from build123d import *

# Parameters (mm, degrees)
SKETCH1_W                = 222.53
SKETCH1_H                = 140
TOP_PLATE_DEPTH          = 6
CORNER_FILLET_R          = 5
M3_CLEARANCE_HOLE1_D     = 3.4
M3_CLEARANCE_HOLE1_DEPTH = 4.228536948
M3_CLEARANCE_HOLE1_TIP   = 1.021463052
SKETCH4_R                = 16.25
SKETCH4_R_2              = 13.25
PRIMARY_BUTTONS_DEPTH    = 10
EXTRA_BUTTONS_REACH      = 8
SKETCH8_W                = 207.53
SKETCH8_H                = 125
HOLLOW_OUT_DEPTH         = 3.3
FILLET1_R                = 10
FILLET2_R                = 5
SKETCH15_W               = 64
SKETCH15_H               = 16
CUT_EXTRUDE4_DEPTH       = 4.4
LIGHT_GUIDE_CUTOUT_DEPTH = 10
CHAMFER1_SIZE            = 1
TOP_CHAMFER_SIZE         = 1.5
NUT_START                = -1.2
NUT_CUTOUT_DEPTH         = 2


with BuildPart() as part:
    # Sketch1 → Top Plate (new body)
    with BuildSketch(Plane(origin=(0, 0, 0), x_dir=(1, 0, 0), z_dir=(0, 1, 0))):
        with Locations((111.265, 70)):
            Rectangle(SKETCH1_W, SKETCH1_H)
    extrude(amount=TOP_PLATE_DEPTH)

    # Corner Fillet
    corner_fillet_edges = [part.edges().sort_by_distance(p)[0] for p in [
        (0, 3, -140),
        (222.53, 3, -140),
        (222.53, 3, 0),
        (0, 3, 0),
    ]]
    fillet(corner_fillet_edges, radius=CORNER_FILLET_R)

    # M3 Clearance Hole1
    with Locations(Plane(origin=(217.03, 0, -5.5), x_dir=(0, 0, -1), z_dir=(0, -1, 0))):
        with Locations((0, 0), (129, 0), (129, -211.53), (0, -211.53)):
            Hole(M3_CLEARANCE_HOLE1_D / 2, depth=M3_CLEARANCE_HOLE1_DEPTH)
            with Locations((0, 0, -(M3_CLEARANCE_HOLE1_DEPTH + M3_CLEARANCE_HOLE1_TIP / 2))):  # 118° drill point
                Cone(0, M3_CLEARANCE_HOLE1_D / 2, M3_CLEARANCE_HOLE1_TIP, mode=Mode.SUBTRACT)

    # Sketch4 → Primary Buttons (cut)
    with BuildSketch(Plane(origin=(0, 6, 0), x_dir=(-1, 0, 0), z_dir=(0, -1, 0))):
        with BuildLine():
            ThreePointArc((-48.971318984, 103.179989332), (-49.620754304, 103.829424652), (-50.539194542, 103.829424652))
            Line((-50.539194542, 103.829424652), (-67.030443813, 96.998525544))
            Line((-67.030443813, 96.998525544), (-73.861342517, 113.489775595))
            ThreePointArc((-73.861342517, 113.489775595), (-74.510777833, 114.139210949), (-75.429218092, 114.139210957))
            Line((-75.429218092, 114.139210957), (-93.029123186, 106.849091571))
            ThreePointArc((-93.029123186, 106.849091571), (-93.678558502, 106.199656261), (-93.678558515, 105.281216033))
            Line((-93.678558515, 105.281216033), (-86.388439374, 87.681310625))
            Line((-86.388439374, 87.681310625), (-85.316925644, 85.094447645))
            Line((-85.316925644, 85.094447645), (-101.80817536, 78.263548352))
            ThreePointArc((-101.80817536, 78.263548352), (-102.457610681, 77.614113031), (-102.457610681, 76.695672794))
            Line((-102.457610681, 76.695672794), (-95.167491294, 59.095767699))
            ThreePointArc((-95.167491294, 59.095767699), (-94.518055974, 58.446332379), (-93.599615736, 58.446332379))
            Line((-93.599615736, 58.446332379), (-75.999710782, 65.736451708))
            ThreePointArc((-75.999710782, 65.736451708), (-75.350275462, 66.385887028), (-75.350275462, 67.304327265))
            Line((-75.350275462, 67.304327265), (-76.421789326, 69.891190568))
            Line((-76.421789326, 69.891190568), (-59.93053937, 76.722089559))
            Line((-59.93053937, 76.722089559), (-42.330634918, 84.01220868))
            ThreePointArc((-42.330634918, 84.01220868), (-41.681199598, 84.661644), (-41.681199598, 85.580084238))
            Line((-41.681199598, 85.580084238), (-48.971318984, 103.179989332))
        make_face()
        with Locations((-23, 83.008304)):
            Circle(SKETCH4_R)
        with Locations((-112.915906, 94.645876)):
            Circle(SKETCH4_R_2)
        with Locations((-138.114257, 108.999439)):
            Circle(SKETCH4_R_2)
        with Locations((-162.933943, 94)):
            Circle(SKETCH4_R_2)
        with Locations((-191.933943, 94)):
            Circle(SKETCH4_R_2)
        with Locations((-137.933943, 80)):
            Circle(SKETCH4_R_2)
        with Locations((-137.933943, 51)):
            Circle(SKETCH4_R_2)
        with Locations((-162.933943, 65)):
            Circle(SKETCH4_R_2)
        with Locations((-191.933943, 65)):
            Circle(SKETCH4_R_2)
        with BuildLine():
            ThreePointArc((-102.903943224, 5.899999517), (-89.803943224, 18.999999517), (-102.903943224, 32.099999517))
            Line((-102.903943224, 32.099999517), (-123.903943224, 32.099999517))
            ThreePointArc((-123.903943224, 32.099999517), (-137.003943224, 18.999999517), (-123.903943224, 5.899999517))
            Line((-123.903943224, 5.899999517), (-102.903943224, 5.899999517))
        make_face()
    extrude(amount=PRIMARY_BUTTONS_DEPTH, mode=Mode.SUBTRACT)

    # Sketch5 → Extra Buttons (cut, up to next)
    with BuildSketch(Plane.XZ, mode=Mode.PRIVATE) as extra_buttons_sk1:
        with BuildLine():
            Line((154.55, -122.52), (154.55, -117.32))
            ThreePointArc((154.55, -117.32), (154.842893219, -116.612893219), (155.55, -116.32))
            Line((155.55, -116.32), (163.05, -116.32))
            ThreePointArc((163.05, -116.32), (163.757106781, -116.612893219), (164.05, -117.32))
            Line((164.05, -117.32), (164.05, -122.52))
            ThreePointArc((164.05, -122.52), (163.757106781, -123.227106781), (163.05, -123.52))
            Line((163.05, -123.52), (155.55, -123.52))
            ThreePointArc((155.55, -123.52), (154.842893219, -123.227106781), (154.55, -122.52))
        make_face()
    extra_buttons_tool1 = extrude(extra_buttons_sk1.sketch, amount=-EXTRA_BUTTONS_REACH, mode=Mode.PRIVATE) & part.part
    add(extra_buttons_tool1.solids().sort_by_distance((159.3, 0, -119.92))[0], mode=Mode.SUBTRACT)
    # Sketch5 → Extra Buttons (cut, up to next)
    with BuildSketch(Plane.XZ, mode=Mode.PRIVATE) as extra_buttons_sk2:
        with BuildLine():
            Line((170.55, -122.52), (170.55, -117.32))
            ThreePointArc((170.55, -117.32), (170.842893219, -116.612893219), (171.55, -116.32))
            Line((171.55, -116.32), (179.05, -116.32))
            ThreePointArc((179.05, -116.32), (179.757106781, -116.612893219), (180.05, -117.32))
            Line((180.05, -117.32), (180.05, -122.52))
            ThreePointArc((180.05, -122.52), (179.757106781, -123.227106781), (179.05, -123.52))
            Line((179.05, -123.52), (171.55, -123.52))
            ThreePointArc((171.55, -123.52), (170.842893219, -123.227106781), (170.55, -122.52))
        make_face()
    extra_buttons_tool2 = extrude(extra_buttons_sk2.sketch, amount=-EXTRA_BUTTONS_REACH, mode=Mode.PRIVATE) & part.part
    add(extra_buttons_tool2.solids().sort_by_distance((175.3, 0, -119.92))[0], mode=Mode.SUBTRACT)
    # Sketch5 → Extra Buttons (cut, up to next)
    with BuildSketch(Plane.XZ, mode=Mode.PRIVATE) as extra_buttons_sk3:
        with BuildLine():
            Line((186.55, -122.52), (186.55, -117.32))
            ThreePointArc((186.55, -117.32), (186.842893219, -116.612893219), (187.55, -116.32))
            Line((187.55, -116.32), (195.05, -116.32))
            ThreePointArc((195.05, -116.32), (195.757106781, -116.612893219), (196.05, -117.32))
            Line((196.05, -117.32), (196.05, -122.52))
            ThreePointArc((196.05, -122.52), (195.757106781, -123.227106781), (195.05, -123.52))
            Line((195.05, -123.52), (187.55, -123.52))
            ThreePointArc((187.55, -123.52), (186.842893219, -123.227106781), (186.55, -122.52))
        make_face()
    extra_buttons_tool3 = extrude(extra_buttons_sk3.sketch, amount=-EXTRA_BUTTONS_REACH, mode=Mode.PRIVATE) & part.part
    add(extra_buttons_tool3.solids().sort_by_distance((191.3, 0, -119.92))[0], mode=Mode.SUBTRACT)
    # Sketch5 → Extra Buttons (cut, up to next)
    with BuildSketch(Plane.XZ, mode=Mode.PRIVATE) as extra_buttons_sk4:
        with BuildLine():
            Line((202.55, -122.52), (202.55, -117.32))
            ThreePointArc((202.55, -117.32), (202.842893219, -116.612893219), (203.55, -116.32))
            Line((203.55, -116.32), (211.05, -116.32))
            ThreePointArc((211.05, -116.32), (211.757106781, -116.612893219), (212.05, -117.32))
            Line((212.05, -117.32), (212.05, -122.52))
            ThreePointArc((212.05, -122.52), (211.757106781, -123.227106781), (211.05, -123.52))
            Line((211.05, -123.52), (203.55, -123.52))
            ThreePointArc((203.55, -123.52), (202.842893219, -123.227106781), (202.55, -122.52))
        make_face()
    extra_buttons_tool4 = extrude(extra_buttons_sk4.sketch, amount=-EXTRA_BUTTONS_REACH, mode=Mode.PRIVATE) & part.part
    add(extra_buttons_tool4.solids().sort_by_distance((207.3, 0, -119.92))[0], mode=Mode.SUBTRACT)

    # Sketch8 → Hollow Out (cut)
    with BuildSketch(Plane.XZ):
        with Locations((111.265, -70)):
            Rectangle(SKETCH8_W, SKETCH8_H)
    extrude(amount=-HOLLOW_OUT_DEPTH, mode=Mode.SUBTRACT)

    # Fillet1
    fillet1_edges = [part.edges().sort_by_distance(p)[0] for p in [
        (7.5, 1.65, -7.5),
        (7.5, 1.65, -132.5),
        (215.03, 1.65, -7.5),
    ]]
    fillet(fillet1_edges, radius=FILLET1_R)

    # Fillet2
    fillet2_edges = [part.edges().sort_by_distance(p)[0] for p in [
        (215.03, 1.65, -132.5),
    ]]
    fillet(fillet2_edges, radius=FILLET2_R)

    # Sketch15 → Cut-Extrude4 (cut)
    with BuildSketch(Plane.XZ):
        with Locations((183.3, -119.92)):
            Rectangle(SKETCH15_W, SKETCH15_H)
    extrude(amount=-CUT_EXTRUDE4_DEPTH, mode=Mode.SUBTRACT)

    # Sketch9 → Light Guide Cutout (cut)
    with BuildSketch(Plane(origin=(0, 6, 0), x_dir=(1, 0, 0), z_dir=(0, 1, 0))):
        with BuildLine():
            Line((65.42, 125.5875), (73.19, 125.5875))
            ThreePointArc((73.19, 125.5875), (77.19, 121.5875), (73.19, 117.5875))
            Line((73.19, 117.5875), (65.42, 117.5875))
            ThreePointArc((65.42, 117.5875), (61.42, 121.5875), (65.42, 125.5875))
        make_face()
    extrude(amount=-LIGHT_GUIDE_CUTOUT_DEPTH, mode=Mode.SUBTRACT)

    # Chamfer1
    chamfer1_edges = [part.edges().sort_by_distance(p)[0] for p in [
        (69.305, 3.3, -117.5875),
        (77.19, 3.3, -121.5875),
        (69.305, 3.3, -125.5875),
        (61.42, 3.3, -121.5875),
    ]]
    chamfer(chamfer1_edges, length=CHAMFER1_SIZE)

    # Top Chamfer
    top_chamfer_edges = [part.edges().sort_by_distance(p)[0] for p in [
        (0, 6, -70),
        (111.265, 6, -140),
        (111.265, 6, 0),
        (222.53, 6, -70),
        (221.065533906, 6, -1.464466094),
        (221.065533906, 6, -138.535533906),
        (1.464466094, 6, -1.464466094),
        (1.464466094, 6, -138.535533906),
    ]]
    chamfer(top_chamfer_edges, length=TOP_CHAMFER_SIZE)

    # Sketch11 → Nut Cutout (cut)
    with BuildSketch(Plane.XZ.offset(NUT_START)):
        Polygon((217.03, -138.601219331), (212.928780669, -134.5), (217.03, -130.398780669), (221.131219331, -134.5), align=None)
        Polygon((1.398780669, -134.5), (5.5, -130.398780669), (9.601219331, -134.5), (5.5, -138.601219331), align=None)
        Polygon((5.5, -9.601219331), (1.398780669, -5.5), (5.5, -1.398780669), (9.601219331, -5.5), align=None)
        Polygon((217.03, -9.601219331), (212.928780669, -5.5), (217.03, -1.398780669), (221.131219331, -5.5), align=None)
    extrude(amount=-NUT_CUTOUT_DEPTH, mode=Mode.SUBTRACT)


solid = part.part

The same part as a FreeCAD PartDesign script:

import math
import FreeCAD as App
import Part
import Sketcher
from FreeCAD import Vector
Q = App.Units.Quantity


def edges_at(feature, points):
    """Names of the edges that pass closest to the given points."""
    edges = feature.Shape.Edges
    near = lambda p: min(range(len(edges)), key=lambda i: edges[i].distToShape(Part.Vertex(*p))[0])
    return sorted({f"Edge{near(p) + 1}" for p in points})


def add_polygon(sketch, points):
    """Adds a closed chain of lines whose ends are joined by coincident constraints."""
    first, n = sketch.GeometryCount, len(points)
    for a, b in zip(points, points[1:] + points[:1]):
        sketch.addGeometry(Part.LineSegment(App.Vector(*a, 0), App.Vector(*b, 0)), False)
    for i in range(n):
        sketch.addConstraint(Sketcher.Constraint("Coincident", first + i, 2, first + (i + 1) % n, 1))

doc = App.newDocument("Part")
params = doc.addObject("Spreadsheet::Sheet", "Params")
for row, (alias, value) in enumerate([
    ("sketch1_height", "140 mm"),
    ("sketch1_width", "222.53 mm"),
    ("pad1_length", "6 mm"),
    ("fillet_radius", "5 mm"),
    ("sketch2_diameter", "3.4 mm"),
    ("hole_diameter", "3.4 mm"),
    ("hole_depth", "4.228537 mm"),
    ("sketch3_diameter", "32.5 mm"),
    ("sketch3_diameter2", "26.5 mm"),
    ("sketch3_radius", "1.2 mm"),
    ("sketch3_radius2", "13.1 mm"),
    ("sketch3_width", "21 mm"),
    ("pocket1_length", "10 mm"),
    ("sketch4_radius", "1 mm"),
    ("sketch4_width", "7.5 mm"),
    ("sketch4_height", "5.2 mm"),
    ("sketch5_radius", "1 mm"),
    ("sketch5_width", "7.5 mm"),
    ("sketch5_height", "5.2 mm"),
    ("sketch6_radius", "1 mm"),
    ("sketch6_width", "7.5 mm"),
    ("sketch6_height", "5.2 mm"),
    ("sketch7_radius", "1 mm"),
    ("sketch7_width", "7.5 mm"),
    ("sketch7_height", "5.2 mm"),
    ("sketch8_height", "125 mm"),
    ("sketch8_width", "207.53 mm"),
    ("pocket6_length", "3.3 mm"),
    ("fillet2_radius", "10 mm"),
    ("fillet3_radius", "5 mm"),
    ("sketch9_width", "64 mm"),
    ("sketch9_height", "16 mm"),
    ("pocket7_length", "4.4 mm"),
    ("sketch10_radius", "4 mm"),
    ("sketch10_width", "7.77 mm"),
    ("pocket8_length", "10 mm"),
    ("chamfer_size", "1 mm"),
    ("chamfer2_size", "1.5 mm"),
    ("sketch11_length", "5.8 mm"),
    ("pocket9_length", "2 mm"),
], start=1):
    params.set(f"A{row}", alias)
    params.set(f"B{row}", "=" + value)
    params.setAlias(f"B{row}", alias)

body = doc.addObject("PartDesign::Body", "Body")

# Sketch on XZ plane
sketch1 = body.newObject("Sketcher::SketchObject", "Sketch")
sketch1.AttachmentSupport = (doc.getObject("XZ_Plane"), [""])
sketch1.MapMode = "FlatFace"
add_polygon(sketch1, [(0, -140), (0, 0), (222.53, 0), (222.53, -140)])  # lines 0-3
sketch1.addConstraint(Sketcher.Constraint("Vertical", 0))
sketch1.addConstraint(Sketcher.Constraint("Horizontal", 1))
sketch1.addConstraint(Sketcher.Constraint("Vertical", 2))
sketch1.addConstraint(Sketcher.Constraint("Horizontal", 3))
sketch1.addConstraint(Sketcher.Constraint("Coincident", 0, 2, -1, 1))
sketch1.addConstraint(Sketcher.Constraint("DistanceY", 0, 1, 0, 2, Q("140 mm")))
sketch1.addConstraint(Sketcher.Constraint("DistanceX", 1, 1, 1, 2, Q("222.53 mm")))
sketch1.setExpression("Constraints[9]", "Params.sketch1_height")
sketch1.setExpression("Constraints[10]", "Params.sketch1_width")
pad1 = body.newObject("PartDesign::Pad", "Pad")
pad1.Profile = sketch1
pad1.setExpression("Length", "Params.pad1_length")
pad1.Reversed = True
doc.recompute()

fillet = body.newObject("PartDesign::Fillet", "Fillet")
fillet.Base = (pad1, edges_at(pad1, [
    (0, 3, -140),
    (222.53, 3, -140),
    (222.53, 3, 0),
    (0, 3, 0),
]))
fillet.setExpression("Radius", "Params.fillet_radius")

# Sketch on XZ plane
sketch2 = body.newObject("Sketcher::SketchObject", "Sketch001")
sketch2.AttachmentSupport = (doc.getObject("XZ_Plane"), [""])
sketch2.MapMode = "FlatFace"
sketch2.addGeometry(Part.Circle(Vector(217.03, -5.5, 0), Vector(0, 0, 1), 1.7), False)
sketch2.addGeometry(Part.Circle(Vector(217.03, -134.5, 0), Vector(0, 0, 1), 1.7), False)
sketch2.addGeometry(Part.Circle(Vector(5.5, -134.5, 0), Vector(0, 0, 1), 1.7), False)
sketch2.addGeometry(Part.Circle(Vector(5.5, -5.5, 0), Vector(0, 0, 1), 1.7), False)
sketch2.addConstraint(Sketcher.Constraint("Equal", 0, 1))
sketch2.addConstraint(Sketcher.Constraint("Equal", 1, 2))
sketch2.addConstraint(Sketcher.Constraint("Equal", 2, 3))
sketch2.addConstraint(Sketcher.Constraint("Horizontal", 1, 3, 2, 3))
sketch2.addConstraint(Sketcher.Constraint("Horizontal", 0, 3, 3, 3))
sketch2.addConstraint(Sketcher.Constraint("Vertical", 0, 3, 1, 3))
sketch2.addConstraint(Sketcher.Constraint("Vertical", 2, 3, 3, 3))
sketch2.addConstraint(Sketcher.Constraint("Diameter", 0, Q("3.4 mm")))
sketch2.addConstraint(Sketcher.Constraint("DistanceY", 1, 3, 0, 3, Q("129 mm")))
sketch2.addConstraint(Sketcher.Constraint("DistanceY", 0, 3, -1, 1, Q("5.5 mm")))
sketch2.addConstraint(Sketcher.Constraint("DistanceX", -1, 1, 2, 3, Q("5.5 mm")))
sketch2.addConstraint(Sketcher.Constraint("DistanceX", -1, 1, 0, 3, Q("217.03 mm")))
sketch2.setExpression("Constraints[7]", "Params.sketch2_diameter")
doc.recompute()
hole = body.newObject("PartDesign::Hole", "Hole")
hole.Profile = sketch2
hole.ThreadType = "None"
hole.setExpression("Diameter", "Params.hole_diameter")
hole.DepthType = "Dimension"
hole.setExpression("Depth", "Params.hole_depth")
hole.DrillPoint = "Angled"
hole.DrillPointAngle = 118

# Sketch on XZ plane
sketch3 = body.newObject("Sketcher::SketchObject", "Sketch002")
sketch3.AttachmentSupport = (doc.getObject("XZ_Plane"), [""])
sketch3.MapMode = "FlatFace"
sketch3.AttachmentOffset = App.Placement(Vector(0, 0, -6), App.Rotation())
sketch3.addGeometry(Part.ArcOfCircle(Part.Circle(Vector(50.079974, -102.720769, 0), Vector(0, 0, 1), 1.2), math.radians(-157.5), math.radians(-67.5)), False)
sketch3.addGeometry(Part.LineSegment(Vector(50.539195, -103.829425, 0), Vector(67.030444, -96.998526, 0)), False)
sketch3.addGeometry(Part.LineSegment(Vector(67.030444, -96.998526, 0), Vector(73.861343, -113.489776, 0)), False)
sketch3.addGeometry(Part.ArcOfCircle(Part.Circle(Vector(74.969998, -113.030556, 0), Vector(0, 0, 1), 1.2), math.radians(-157.500002), math.radians(-67.5)), False)
sketch3.addGeometry(Part.LineSegment(Vector(75.429218, -114.139211, 0), Vector(93.029123, -106.849092, 0)), False)
sketch3.addGeometry(Part.ArcOfCircle(Part.Circle(Vector(92.569903, -105.740436, 0), Vector(0, 0, 1), 1.2), math.radians(-67.5), math.radians(22.499999)), False)
sketch3.addGeometry(Part.LineSegment(Vector(93.678559, -105.281216, 0), Vector(86.388439, -87.681311, 0)), False)
sketch3.addGeometry(Part.LineSegment(Vector(86.388439, -87.681311, 0), Vector(85.316926, -85.094448, 0)), False)
sketch3.addGeometry(Part.LineSegment(Vector(85.316926, -85.094448, 0), Vector(101.808175, -78.263548, 0)), False)
sketch3.addGeometry(Part.ArcOfCircle(Part.Circle(Vector(101.348955, -77.154893, 0), Vector(0, 0, 1), 1.2), math.radians(-67.5), math.radians(22.5)), False)
sketch3.addGeometry(Part.LineSegment(Vector(102.457611, -76.695673, 0), Vector(95.167491, -59.095768, 0)), False)
sketch3.addGeometry(Part.ArcOfCircle(Part.Circle(Vector(94.058836, -59.554988, 0), Vector(0, 0, 1), 1.2), math.radians(22.5), math.radians(112.5)), False)
sketch3.addGeometry(Part.LineSegment(Vector(93.599616, -58.446332, 0), Vector(75.999711, -65.736452, 0)), False)
sketch3.addGeometry(Part.ArcOfCircle(Part.Circle(Vector(76.458931, -66.845107, 0), Vector(0, 0, 1), 1.2), math.radians(112.5), math.radians(202.5)), False)
sketch3.addGeometry(Part.LineSegment(Vector(75.350275, -67.304327, 0), Vector(76.421789, -69.891191, 0)), False)
sketch3.addGeometry(Part.LineSegment(Vector(76.421789, -69.891191, 0), Vector(59.930539, -76.72209, 0)), False)
sketch3.addGeometry(Part.LineSegment(Vector(59.930539, -76.72209, 0), Vector(42.330635, -84.012209, 0)), False)
sketch3.addGeometry(Part.ArcOfCircle(Part.Circle(Vector(42.789855, -85.120864, 0), Vector(0, 0, 1), 1.2), math.radians(112.5), math.radians(202.5)), False)
sketch3.addGeometry(Part.LineSegment(Vector(41.6812, -85.580084, 0), Vector(48.971319, -103.179989, 0)), False)
sketch3.addGeometry(Part.Circle(Vector(23, -83.008304, 0), Vector(0, 0, 1), 16.25), False)
sketch3.addGeometry(Part.Circle(Vector(112.915906, -94.645876, 0), Vector(0, 0, 1), 13.25), False)
sketch3.addGeometry(Part.Circle(Vector(138.114257, -108.999439, 0), Vector(0, 0, 1), 13.25), False)
sketch3.addGeometry(Part.Circle(Vector(162.933943, -94, 0), Vector(0, 0, 1), 13.25), False)
sketch3.addGeometry(Part.Circle(Vector(191.933943, -94, 0), Vector(0, 0, 1), 13.25), False)
sketch3.addGeometry(Part.Circle(Vector(137.933943, -80, 0), Vector(0, 0, 1), 13.25), False)
sketch3.addGeometry(Part.Circle(Vector(137.933943, -51, 0), Vector(0, 0, 1), 13.25), False)
sketch3.addGeometry(Part.Circle(Vector(162.933943, -65, 0), Vector(0, 0, 1), 13.25), False)
sketch3.addGeometry(Part.Circle(Vector(191.933943, -65, 0), Vector(0, 0, 1), 13.25), False)
sketch3.addGeometry(Part.ArcOfCircle(Part.Circle(Vector(102.903943, -19, 0), Vector(0, 0, 1), 13.1), math.radians(90), math.radians(270)), False)
sketch3.addGeometry(Part.LineSegment(Vector(102.903943, -32.1, 0), Vector(123.903943, -32.1, 0)), False)
sketch3.addGeometry(Part.ArcOfCircle(Part.Circle(Vector(123.903943, -19, 0), Vector(0, 0, 1), 13.1), math.radians(-90), math.radians(90)), False)
sketch3.addGeometry(Part.LineSegment(Vector(123.903943, -5.9, 0), Vector(102.903943, -5.9, 0)), False)
sketch3.addConstraint(Sketcher.Constraint("Tangent", 0, 2, 1, 1))
sketch3.addConstraint(Sketcher.Constraint("Coincident", 1, 2, 2, 1))
sketch3.addConstraint(Sketcher.Constraint("Tangent", 2, 2, 3, 1))
sketch3.addConstraint(Sketcher.Constraint("Tangent", 3, 2, 4, 1))
sketch3.addConstraint(Sketcher.Constraint("Tangent", 4, 2, 5, 1))
sketch3.addConstraint(Sketcher.Constraint("Tangent", 5, 2, 6, 1))
sketch3.addConstraint(Sketcher.Constraint("Coincident", 6, 2, 7, 1))
sketch3.addConstraint(Sketcher.Constraint("Coincident", 7, 2, 8, 1))
sketch3.addConstraint(Sketcher.Constraint("Tangent", 8, 2, 9, 1))
sketch3.addConstraint(Sketcher.Constraint("Tangent", 9, 2, 10, 1))
sketch3.addConstraint(Sketcher.Constraint("Tangent", 10, 2, 11, 1))
sketch3.addConstraint(Sketcher.Constraint("Tangent", 11, 2, 12, 1))
sketch3.addConstraint(Sketcher.Constraint("Tangent", 12, 2, 13, 1))
sketch3.addConstraint(Sketcher.Constraint("Tangent", 13, 2, 14, 1))
sketch3.addConstraint(Sketcher.Constraint("Coincident", 14, 2, 15, 1))
sketch3.addConstraint(Sketcher.Constraint("Coincident", 15, 2, 16, 1))
sketch3.addConstraint(Sketcher.Constraint("Tangent", 16, 2, 17, 1))
sketch3.addConstraint(Sketcher.Constraint("Tangent", 17, 2, 18, 1))
sketch3.addConstraint(Sketcher.Constraint("Tangent", 18, 2, 0, 1))
sketch3.addConstraint(Sketcher.Constraint("Tangent", 28, 2, 29, 1))
sketch3.addConstraint(Sketcher.Constraint("Tangent", 29, 2, 30, 1))
sketch3.addConstraint(Sketcher.Constraint("Tangent", 30, 2, 31, 1))
sketch3.addConstraint(Sketcher.Constraint("Tangent", 31, 2, 28, 1))
sketch3.addConstraint(Sketcher.Constraint("Horizontal", 29))
sketch3.addConstraint(Sketcher.Constraint("Horizontal", 31))
sketch3.addConstraint(Sketcher.Constraint("Equal", 0, 3))
sketch3.addConstraint(Sketcher.Constraint("Equal", 3, 5))
sketch3.addConstraint(Sketcher.Constraint("Equal", 5, 9))
sketch3.addConstraint(Sketcher.Constraint("Equal", 9, 11))
sketch3.addConstraint(Sketcher.Constraint("Equal", 11, 13))
sketch3.addConstraint(Sketcher.Constraint("Equal", 13, 17))
sketch3.addConstraint(Sketcher.Constraint("Equal", 20, 21))
sketch3.addConstraint(Sketcher.Constraint("Equal", 21, 22))
sketch3.addConstraint(Sketcher.Constraint("Equal", 22, 23))
sketch3.addConstraint(Sketcher.Constraint("Equal", 23, 24))
sketch3.addConstraint(Sketcher.Constraint("Equal", 24, 25))
sketch3.addConstraint(Sketcher.Constraint("Equal", 25, 26))
sketch3.addConstraint(Sketcher.Constraint("Equal", 26, 27))
sketch3.addConstraint(Sketcher.Constraint("Perpendicular", 1, 2))
sketch3.addConstraint(Sketcher.Constraint("Perpendicular", 2, 4))
sketch3.addConstraint(Sketcher.Constraint("Perpendicular", 4, 6))
sketch3.addConstraint(Sketcher.Constraint("Parallel", 6, 7))
sketch3.addConstraint(Sketcher.Constraint("Perpendicular", 7, 8))
sketch3.addConstraint(Sketcher.Constraint("Perpendicular", 8, 10))
sketch3.addConstraint(Sketcher.Constraint("Perpendicular", 10, 12))
sketch3.addConstraint(Sketcher.Constraint("Perpendicular", 12, 14))
sketch3.addConstraint(Sketcher.Constraint("Perpendicular", 14, 15))
sketch3.addConstraint(Sketcher.Constraint("Parallel", 15, 16))
sketch3.addConstraint(Sketcher.Constraint("Perpendicular", 16, 18))
sketch3.addConstraint(Sketcher.Constraint("Horizontal", 22, 3, 23, 3))
sketch3.addConstraint(Sketcher.Constraint("Horizontal", 26, 3, 27, 3))
sketch3.addConstraint(Sketcher.Constraint("Vertical", 24, 3, 25, 3))
sketch3.addConstraint(Sketcher.Constraint("Vertical", 22, 3, 26, 3))
sketch3.addConstraint(Sketcher.Constraint("Vertical", 23, 3, 27, 3))
sketch3.addConstraint(Sketcher.Constraint("Equal", 1, 2))
sketch3.addConstraint(Sketcher.Constraint("Equal", 4, 6))
sketch3.addConstraint(Sketcher.Constraint("Equal", 2, 8))
sketch3.addConstraint(Sketcher.Constraint("Equal", 6, 10))
sketch3.addConstraint(Sketcher.Constraint("Equal", 10, 12))
sketch3.addConstraint(Sketcher.Constraint("Equal", 7, 14))
sketch3.addConstraint(Sketcher.Constraint("Equal", 8, 15))
sketch3.addConstraint(Sketcher.Constraint("Equal", 12, 16))
sketch3.addConstraint(Sketcher.Constraint("Diameter", 19, Q("32.5 mm")))
sketch3.addConstraint(Sketcher.Constraint("Diameter", 20, Q("26.5 mm")))
sketch3.addConstraint(Sketcher.Constraint("Radius", 0, Q("1.2 mm")))
sketch3.addConstraint(Sketcher.Constraint("Radius", 28, Q("13.1 mm")))
sketch3.addConstraint(Sketcher.Constraint("DistanceX", 29, 1, 29, 2, Q("21 mm")))
sketch3.addConstraint(Sketcher.Constraint("DistanceX", -1, 1, 19, 3, Q("23 mm")))
sketch3.addConstraint(Sketcher.Constraint("DistanceY", 22, 3, -1, 1, Q("94 mm")))
sketch3.addConstraint(Sketcher.Constraint("DistanceY", 24, 3, -1, 1, Q("80 mm")))
sketch3.addConstraint(Sketcher.Constraint("DistanceY", 25, 3, -1, 1, Q("51 mm")))
sketch3.addConstraint(Sketcher.Constraint("DistanceY", 26, 3, -1, 1, Q("65 mm")))
sketch3.addConstraint(Sketcher.Constraint("DistanceY", 28, 3, -1, 1, Q("19 mm")))
sketch3.addConstraint(Sketcher.Constraint("Angle", 1, Q("22.5 deg")))
sketch3.addConstraint(Sketcher.Constraint("DistanceX", 22, 3, 23, 3, Q("29 mm")))
sketch3.addConstraint(Sketcher.Constraint("DistanceX", 24, 3, 22, 3, Q("25 mm")))
sketch3.addConstraint(Sketcher.Constraint("Distance", 7, Q("2.8 mm")))
sketch3.addConstraint(Sketcher.Constraint("Distance", 1, Q("17.85 mm")))
sketch3.addConstraint(Sketcher.Constraint("DistanceX", 28, 3, 25, 3, Q("35.03 mm")))
sketch3.addConstraint(Sketcher.Constraint("DistanceX", -1, 1, 17, 2, Q("41.6812 mm")))
sketch3.addConstraint(Sketcher.Constraint("DistanceX", 9, 3, 21, 3, Q("36.765302 mm")))
sketch3.addConstraint(Sketcher.Constraint("DistanceY", 0, 3, -1, 1, Q("102.720769 mm")))
sketch3.addConstraint(Sketcher.Constraint("DistanceY", 21, 3, -1, 1, Q("108.999439 mm")))
sketch3.addConstraint(Sketcher.Constraint("DistanceY", 17, 3, 19, 3, Q("2.11256 mm")))
sketch3.addConstraint(Sketcher.Constraint("DistanceX", 9, 3, 20, 3, Q("11.566951 mm")))
sketch3.addConstraint(Sketcher.Constraint("DistanceY", 5, 3, 20, 3, Q("11.09456 mm")))
sketch3.addConstraint(Sketcher.Constraint("DistanceX", 5, 3, 22, 3, Q("70.36404 mm")))
sketch3.setExpression("Constraints[62]", "Params.sketch3_diameter")
sketch3.setExpression("Constraints[63]", "Params.sketch3_diameter2")
sketch3.setExpression("Constraints[64]", "Params.sketch3_radius")
sketch3.setExpression("Constraints[65]", "Params.sketch3_radius2")
sketch3.setExpression("Constraints[66]", "Params.sketch3_width")
pocket1 = body.newObject("PartDesign::Pocket", "Pocket")
pocket1.Profile = sketch3
pocket1.setExpression("Length", "Params.pocket1_length")
pocket1.Reversed = True

# Sketch on XZ plane
sketch4 = body.newObject("Sketcher::SketchObject", "Sketch003")
sketch4.AttachmentSupport = (doc.getObject("XZ_Plane"), [""])
sketch4.MapMode = "FlatFace"
sketch4.addGeometry(Part.LineSegment(Vector(154.55, -117.32, 0), Vector(154.55, -122.52, 0)), False)
sketch4.addGeometry(Part.ArcOfCircle(Part.Circle(Vector(155.55, -122.52, 0), Vector(0, 0, 1), 1), math.radians(-180), math.radians(-90)), False)
sketch4.addGeometry(Part.LineSegment(Vector(155.55, -123.52, 0), Vector(163.05, -123.52, 0)), False)
sketch4.addGeometry(Part.ArcOfCircle(Part.Circle(Vector(163.05, -122.52, 0), Vector(0, 0, 1), 1), math.radians(-90), math.radians(0)), False)
sketch4.addGeometry(Part.LineSegment(Vector(164.05, -122.52, 0), Vector(164.05, -117.32, 0)), False)
sketch4.addGeometry(Part.ArcOfCircle(Part.Circle(Vector(163.05, -117.32, 0), Vector(0, 0, 1), 1), math.radians(0), math.radians(90)), False)
sketch4.addGeometry(Part.LineSegment(Vector(163.05, -116.32, 0), Vector(155.55, -116.32, 0)), False)
sketch4.addGeometry(Part.ArcOfCircle(Part.Circle(Vector(155.55, -117.32, 0), Vector(0, 0, 1), 1), math.radians(90), math.radians(180)), False)
sketch4.addConstraint(Sketcher.Constraint("Tangent", 0, 2, 1, 1))
sketch4.addConstraint(Sketcher.Constraint("Tangent", 1, 2, 2, 1))
sketch4.addConstraint(Sketcher.Constraint("Tangent", 2, 2, 3, 1))
sketch4.addConstraint(Sketcher.Constraint("Tangent", 3, 2, 4, 1))
sketch4.addConstraint(Sketcher.Constraint("Tangent", 4, 2, 5, 1))
sketch4.addConstraint(Sketcher.Constraint("Tangent", 5, 2, 6, 1))
sketch4.addConstraint(Sketcher.Constraint("Tangent", 6, 2, 7, 1))
sketch4.addConstraint(Sketcher.Constraint("Tangent", 7, 2, 0, 1))
sketch4.addConstraint(Sketcher.Constraint("Vertical", 0))
sketch4.addConstraint(Sketcher.Constraint("Horizontal", 2))
sketch4.addConstraint(Sketcher.Constraint("Vertical", 4))
sketch4.addConstraint(Sketcher.Constraint("Horizontal", 6))
sketch4.addConstraint(Sketcher.Constraint("Equal", 1, 3))
sketch4.addConstraint(Sketcher.Constraint("Equal", 3, 5))
sketch4.addConstraint(Sketcher.Constraint("Equal", 5, 7))
sketch4.addConstraint(Sketcher.Constraint("Radius", 1, Q("1 mm")))
sketch4.addConstraint(Sketcher.Constraint("DistanceX", 2, 1, 2, 2, Q("7.5 mm")))
sketch4.addConstraint(Sketcher.Constraint("DistanceY", 0, 2, 0, 1, Q("5.2 mm")))
sketch4.addConstraint(Sketcher.Constraint("DistanceX", -1, 1, 1, 3, Q("155.55 mm")))
sketch4.addConstraint(Sketcher.Constraint("DistanceY", 1, 3, -1, 1, Q("122.52 mm")))
sketch4.setExpression("Constraints[15]", "Params.sketch4_radius")
sketch4.setExpression("Constraints[16]", "Params.sketch4_width")
sketch4.setExpression("Constraints[17]", "Params.sketch4_height")
pocket2 = body.newObject("PartDesign::Pocket", "Pocket001")
pocket2.Profile = sketch4
pocket2.Type = "UpToFirst"

# Sketch on XZ plane
sketch5 = body.newObject("Sketcher::SketchObject", "Sketch004")
sketch5.AttachmentSupport = (doc.getObject("XZ_Plane"), [""])
sketch5.MapMode = "FlatFace"
sketch5.addGeometry(Part.LineSegment(Vector(170.55, -117.32, 0), Vector(170.55, -122.52, 0)), False)
sketch5.addGeometry(Part.ArcOfCircle(Part.Circle(Vector(171.55, -122.52, 0), Vector(0, 0, 1), 1), math.radians(-180), math.radians(-90)), False)
sketch5.addGeometry(Part.LineSegment(Vector(171.55, -123.52, 0), Vector(179.05, -123.52, 0)), False)
sketch5.addGeometry(Part.ArcOfCircle(Part.Circle(Vector(179.05, -122.52, 0), Vector(0, 0, 1), 1), math.radians(-90), math.radians(0)), False)
sketch5.addGeometry(Part.LineSegment(Vector(180.05, -122.52, 0), Vector(180.05, -117.32, 0)), False)
sketch5.addGeometry(Part.ArcOfCircle(Part.Circle(Vector(179.05, -117.32, 0), Vector(0, 0, 1), 1), math.radians(0), math.radians(90)), False)
sketch5.addGeometry(Part.LineSegment(Vector(179.05, -116.32, 0), Vector(171.55, -116.32, 0)), False)
sketch5.addGeometry(Part.ArcOfCircle(Part.Circle(Vector(171.55, -117.32, 0), Vector(0, 0, 1), 1), math.radians(90), math.radians(180)), False)
sketch5.addConstraint(Sketcher.Constraint("Tangent", 0, 2, 1, 1))
sketch5.addConstraint(Sketcher.Constraint("Tangent", 1, 2, 2, 1))
sketch5.addConstraint(Sketcher.Constraint("Tangent", 2, 2, 3, 1))
sketch5.addConstraint(Sketcher.Constraint("Tangent", 3, 2, 4, 1))
sketch5.addConstraint(Sketcher.Constraint("Tangent", 4, 2, 5, 1))
sketch5.addConstraint(Sketcher.Constraint("Tangent", 5, 2, 6, 1))
sketch5.addConstraint(Sketcher.Constraint("Tangent", 6, 2, 7, 1))
sketch5.addConstraint(Sketcher.Constraint("Tangent", 7, 2, 0, 1))
sketch5.addConstraint(Sketcher.Constraint("Vertical", 0))
sketch5.addConstraint(Sketcher.Constraint("Horizontal", 2))
sketch5.addConstraint(Sketcher.Constraint("Vertical", 4))
sketch5.addConstraint(Sketcher.Constraint("Horizontal", 6))
sketch5.addConstraint(Sketcher.Constraint("Equal", 1, 3))
sketch5.addConstraint(Sketcher.Constraint("Equal", 3, 5))
sketch5.addConstraint(Sketcher.Constraint("Equal", 5, 7))
sketch5.addConstraint(Sketcher.Constraint("Radius", 1, Q("1 mm")))
sketch5.addConstraint(Sketcher.Constraint("DistanceX", 2, 1, 2, 2, Q("7.5 mm")))
sketch5.addConstraint(Sketcher.Constraint("DistanceY", 0, 2, 0, 1, Q("5.2 mm")))
sketch5.addConstraint(Sketcher.Constraint("DistanceX", -1, 1, 1, 3, Q("171.55 mm")))
sketch5.addConstraint(Sketcher.Constraint("DistanceY", 1, 3, -1, 1, Q("122.52 mm")))
sketch5.setExpression("Constraints[15]", "Params.sketch5_radius")
sketch5.setExpression("Constraints[16]", "Params.sketch5_width")
sketch5.setExpression("Constraints[17]", "Params.sketch5_height")
pocket3 = body.newObject("PartDesign::Pocket", "Pocket002")
pocket3.Profile = sketch5
pocket3.Type = "UpToFirst"

# Sketch on XZ plane
sketch6 = body.newObject("Sketcher::SketchObject", "Sketch005")
sketch6.AttachmentSupport = (doc.getObject("XZ_Plane"), [""])
sketch6.MapMode = "FlatFace"
sketch6.addGeometry(Part.LineSegment(Vector(186.55, -117.32, 0), Vector(186.55, -122.52, 0)), False)
sketch6.addGeometry(Part.ArcOfCircle(Part.Circle(Vector(187.55, -122.52, 0), Vector(0, 0, 1), 1), math.radians(-180), math.radians(-90)), False)
sketch6.addGeometry(Part.LineSegment(Vector(187.55, -123.52, 0), Vector(195.05, -123.52, 0)), False)
sketch6.addGeometry(Part.ArcOfCircle(Part.Circle(Vector(195.05, -122.52, 0), Vector(0, 0, 1), 1), math.radians(-90), math.radians(0)), False)
sketch6.addGeometry(Part.LineSegment(Vector(196.05, -122.52, 0), Vector(196.05, -117.32, 0)), False)
sketch6.addGeometry(Part.ArcOfCircle(Part.Circle(Vector(195.05, -117.32, 0), Vector(0, 0, 1), 1), math.radians(0), math.radians(90)), False)
sketch6.addGeometry(Part.LineSegment(Vector(195.05, -116.32, 0), Vector(187.55, -116.32, 0)), False)
sketch6.addGeometry(Part.ArcOfCircle(Part.Circle(Vector(187.55, -117.32, 0), Vector(0, 0, 1), 1), math.radians(90), math.radians(180)), False)
sketch6.addConstraint(Sketcher.Constraint("Tangent", 0, 2, 1, 1))
sketch6.addConstraint(Sketcher.Constraint("Tangent", 1, 2, 2, 1))
sketch6.addConstraint(Sketcher.Constraint("Tangent", 2, 2, 3, 1))
sketch6.addConstraint(Sketcher.Constraint("Tangent", 3, 2, 4, 1))
sketch6.addConstraint(Sketcher.Constraint("Tangent", 4, 2, 5, 1))
sketch6.addConstraint(Sketcher.Constraint("Tangent", 5, 2, 6, 1))
sketch6.addConstraint(Sketcher.Constraint("Tangent", 6, 2, 7, 1))
sketch6.addConstraint(Sketcher.Constraint("Tangent", 7, 2, 0, 1))
sketch6.addConstraint(Sketcher.Constraint("Vertical", 0))
sketch6.addConstraint(Sketcher.Constraint("Horizontal", 2))
sketch6.addConstraint(Sketcher.Constraint("Vertical", 4))
sketch6.addConstraint(Sketcher.Constraint("Horizontal", 6))
sketch6.addConstraint(Sketcher.Constraint("Equal", 1, 3))
sketch6.addConstraint(Sketcher.Constraint("Equal", 3, 5))
sketch6.addConstraint(Sketcher.Constraint("Equal", 5, 7))
sketch6.addConstraint(Sketcher.Constraint("Radius", 1, Q("1 mm")))
sketch6.addConstraint(Sketcher.Constraint("DistanceX", 2, 1, 2, 2, Q("7.5 mm")))
sketch6.addConstraint(Sketcher.Constraint("DistanceY", 0, 2, 0, 1, Q("5.2 mm")))
sketch6.addConstraint(Sketcher.Constraint("DistanceX", -1, 1, 1, 3, Q("187.55 mm")))
sketch6.addConstraint(Sketcher.Constraint("DistanceY", 1, 3, -1, 1, Q("122.52 mm")))
sketch6.setExpression("Constraints[15]", "Params.sketch6_radius")
sketch6.setExpression("Constraints[16]", "Params.sketch6_width")
sketch6.setExpression("Constraints[17]", "Params.sketch6_height")
pocket4 = body.newObject("PartDesign::Pocket", "Pocket003")
pocket4.Profile = sketch6
pocket4.Type = "UpToFirst"

# Sketch on XZ plane
sketch7 = body.newObject("Sketcher::SketchObject", "Sketch006")
sketch7.AttachmentSupport = (doc.getObject("XZ_Plane"), [""])
sketch7.MapMode = "FlatFace"
sketch7.addGeometry(Part.LineSegment(Vector(202.55, -117.32, 0), Vector(202.55, -122.52, 0)), False)
sketch7.addGeometry(Part.ArcOfCircle(Part.Circle(Vector(203.55, -122.52, 0), Vector(0, 0, 1), 1), math.radians(-180), math.radians(-90)), False)
sketch7.addGeometry(Part.LineSegment(Vector(203.55, -123.52, 0), Vector(211.05, -123.52, 0)), False)
sketch7.addGeometry(Part.ArcOfCircle(Part.Circle(Vector(211.05, -122.52, 0), Vector(0, 0, 1), 1), math.radians(-90), math.radians(0)), False)
sketch7.addGeometry(Part.LineSegment(Vector(212.05, -122.52, 0), Vector(212.05, -117.32, 0)), False)
sketch7.addGeometry(Part.ArcOfCircle(Part.Circle(Vector(211.05, -117.32, 0), Vector(0, 0, 1), 1), math.radians(0), math.radians(90)), False)
sketch7.addGeometry(Part.LineSegment(Vector(211.05, -116.32, 0), Vector(203.55, -116.32, 0)), False)
sketch7.addGeometry(Part.ArcOfCircle(Part.Circle(Vector(203.55, -117.32, 0), Vector(0, 0, 1), 1), math.radians(90), math.radians(180)), False)
sketch7.addConstraint(Sketcher.Constraint("Tangent", 0, 2, 1, 1))
sketch7.addConstraint(Sketcher.Constraint("Tangent", 1, 2, 2, 1))
sketch7.addConstraint(Sketcher.Constraint("Tangent", 2, 2, 3, 1))
sketch7.addConstraint(Sketcher.Constraint("Tangent", 3, 2, 4, 1))
sketch7.addConstraint(Sketcher.Constraint("Tangent", 4, 2, 5, 1))
sketch7.addConstraint(Sketcher.Constraint("Tangent", 5, 2, 6, 1))
sketch7.addConstraint(Sketcher.Constraint("Tangent", 6, 2, 7, 1))
sketch7.addConstraint(Sketcher.Constraint("Tangent", 7, 2, 0, 1))
sketch7.addConstraint(Sketcher.Constraint("Vertical", 0))
sketch7.addConstraint(Sketcher.Constraint("Horizontal", 2))
sketch7.addConstraint(Sketcher.Constraint("Vertical", 4))
sketch7.addConstraint(Sketcher.Constraint("Horizontal", 6))
sketch7.addConstraint(Sketcher.Constraint("Equal", 1, 3))
sketch7.addConstraint(Sketcher.Constraint("Equal", 3, 5))
sketch7.addConstraint(Sketcher.Constraint("Equal", 5, 7))
sketch7.addConstraint(Sketcher.Constraint("Radius", 1, Q("1 mm")))
sketch7.addConstraint(Sketcher.Constraint("DistanceX", 2, 1, 2, 2, Q("7.5 mm")))
sketch7.addConstraint(Sketcher.Constraint("DistanceY", 0, 2, 0, 1, Q("5.2 mm")))
sketch7.addConstraint(Sketcher.Constraint("DistanceX", -1, 1, 1, 3, Q("203.55 mm")))
sketch7.addConstraint(Sketcher.Constraint("DistanceY", 1, 3, -1, 1, Q("122.52 mm")))
sketch7.setExpression("Constraints[15]", "Params.sketch7_radius")
sketch7.setExpression("Constraints[16]", "Params.sketch7_width")
sketch7.setExpression("Constraints[17]", "Params.sketch7_height")
pocket5 = body.newObject("PartDesign::Pocket", "Pocket004")
pocket5.Profile = sketch7
pocket5.Type = "UpToFirst"

# Sketch on XZ plane
sketch8 = body.newObject("Sketcher::SketchObject", "Sketch007")
sketch8.AttachmentSupport = (doc.getObject("XZ_Plane"), [""])
sketch8.MapMode = "FlatFace"
add_polygon(sketch8, [(7.5, -7.5), (7.5, -132.5), (215.03, -132.5), (215.03, -7.5)])  # lines 0-3
sketch8.addConstraint(Sketcher.Constraint("Vertical", 0))
sketch8.addConstraint(Sketcher.Constraint("Horizontal", 1))
sketch8.addConstraint(Sketcher.Constraint("Vertical", 2))
sketch8.addConstraint(Sketcher.Constraint("Horizontal", 3))
sketch8.addConstraint(Sketcher.Constraint("DistanceY", 0, 2, 0, 1, Q("125 mm")))
sketch8.addConstraint(Sketcher.Constraint("DistanceX", 1, 1, 1, 2, Q("207.53 mm")))
sketch8.addConstraint(Sketcher.Constraint("DistanceX", -1, 1, 0, 2, Q("7.5 mm")))
sketch8.addConstraint(Sketcher.Constraint("DistanceY", 0, 2, -1, 1, Q("132.5 mm")))
sketch8.setExpression("Constraints[8]", "Params.sketch8_height")
sketch8.setExpression("Constraints[9]", "Params.sketch8_width")
pocket6 = body.newObject("PartDesign::Pocket", "Pocket005")
pocket6.Profile = sketch8
pocket6.setExpression("Length", "Params.pocket6_length")
doc.recompute()

fillet2 = body.newObject("PartDesign::Fillet", "Fillet001")
fillet2.Base = (pocket6, edges_at(pocket6, [(7.5, 1.65, -7.5), (7.5, 1.65, -132.5), (215.03, 1.65, -7.5)]))
fillet2.setExpression("Radius", "Params.fillet2_radius")
doc.recompute()

fillet3 = body.newObject("PartDesign::Fillet", "Fillet002")
fillet3.Base = (fillet2, edges_at(fillet2, [(215.03, 1.65, -132.5)]))
fillet3.setExpression("Radius", "Params.fillet3_radius")

# Sketch on XZ plane
sketch9 = body.newObject("Sketcher::SketchObject", "Sketch008")
sketch9.AttachmentSupport = (doc.getObject("XZ_Plane"), [""])
sketch9.MapMode = "FlatFace"
add_polygon(sketch9, [(151.3, -111.92), (151.3, -127.92), (215.3, -127.92), (215.3, -111.92)])  # lines 0-3
sketch9.addConstraint(Sketcher.Constraint("Vertical", 0))
sketch9.addConstraint(Sketcher.Constraint("Horizontal", 1))
sketch9.addConstraint(Sketcher.Constraint("Vertical", 2))
sketch9.addConstraint(Sketcher.Constraint("Horizontal", 3))
sketch9.addConstraint(Sketcher.Constraint("DistanceX", 1, 1, 1, 2, Q("64 mm")))
sketch9.addConstraint(Sketcher.Constraint("DistanceY", 0, 2, 0, 1, Q("16 mm")))
sketch9.addConstraint(Sketcher.Constraint("DistanceX", -1, 1, 0, 2, Q("151.3 mm")))
sketch9.addConstraint(Sketcher.Constraint("DistanceY", 0, 2, -1, 1, Q("127.92 mm")))
sketch9.setExpression("Constraints[8]", "Params.sketch9_width")
sketch9.setExpression("Constraints[9]", "Params.sketch9_height")
pocket7 = body.newObject("PartDesign::Pocket", "Pocket006")
pocket7.Profile = sketch9
pocket7.setExpression("Length", "Params.pocket7_length")

# Sketch on XZ plane
sketch10 = body.newObject("Sketcher::SketchObject", "Sketch009")
sketch10.AttachmentSupport = (doc.getObject("XZ_Plane"), [""])
sketch10.MapMode = "FlatFace"
sketch10.AttachmentOffset = App.Placement(Vector(0, 0, -6), App.Rotation())
sketch10.addGeometry(Part.LineSegment(Vector(73.19, -125.5875, 0), Vector(65.42, -125.5875, 0)), False)
sketch10.addGeometry(Part.ArcOfCircle(Part.Circle(Vector(65.42, -121.5875, 0), Vector(0, 0, 1), 4), math.radians(90), math.radians(270)), False)
sketch10.addGeometry(Part.LineSegment(Vector(65.42, -117.5875, 0), Vector(73.19, -117.5875, 0)), False)
sketch10.addGeometry(Part.ArcOfCircle(Part.Circle(Vector(73.19, -121.5875, 0), Vector(0, 0, 1), 4), math.radians(-90), math.radians(90)), False)
sketch10.addConstraint(Sketcher.Constraint("Tangent", 0, 2, 1, 2))
sketch10.addConstraint(Sketcher.Constraint("Tangent", 1, 1, 2, 1))
sketch10.addConstraint(Sketcher.Constraint("Tangent", 2, 2, 3, 2))
sketch10.addConstraint(Sketcher.Constraint("Tangent", 3, 1, 0, 1))
sketch10.addConstraint(Sketcher.Constraint("Horizontal", 0))
sketch10.addConstraint(Sketcher.Constraint("Horizontal", 2))
sketch10.addConstraint(Sketcher.Constraint("Radius", 1, Q("4 mm")))
sketch10.addConstraint(Sketcher.Constraint("DistanceX", 0, 2, 0, 1, Q("7.77 mm")))
sketch10.addConstraint(Sketcher.Constraint("DistanceX", -1, 1, 1, 3, Q("65.42 mm")))
sketch10.addConstraint(Sketcher.Constraint("DistanceY", 1, 3, -1, 1, Q("121.5875 mm")))
sketch10.setExpression("Constraints[6]", "Params.sketch10_radius")
sketch10.setExpression("Constraints[7]", "Params.sketch10_width")
pocket8 = body.newObject("PartDesign::Pocket", "Pocket007")
pocket8.Profile = sketch10
pocket8.setExpression("Length", "Params.pocket8_length")
pocket8.Reversed = True
doc.recompute()

chamfer = body.newObject("PartDesign::Chamfer", "Chamfer")
chamfer.Base = (pocket8, edges_at(pocket8, [
    (69.305, 3.3, -117.588),
    (77.19, 3.3, -121.588),
    (69.305, 3.3, -125.588),
    (61.42, 3.3, -121.588),
]))
chamfer.setExpression("Size", "Params.chamfer_size")
doc.recompute()

chamfer2 = body.newObject("PartDesign::Chamfer", "Chamfer001")
chamfer2.Base = (chamfer, edges_at(chamfer, [
    (0, 6, -70),
    (111.265, 6, -140),
    (111.265, 6, 0),
    (222.53, 6, -70),
    (221.066, 6, -1.464),
    (221.066, 6, -138.536),
    (1.464, 6, -1.464),
    (1.464, 6, -138.536),
]))
chamfer2.setExpression("Size", "Params.chamfer2_size")

# Sketch on XZ plane
sketch11 = body.newObject("Sketcher::SketchObject", "Sketch010")
sketch11.AttachmentSupport = (doc.getObject("XZ_Plane"), [""])
sketch11.MapMode = "FlatFace"
sketch11.AttachmentOffset = App.Placement(Vector(0, 0, -1.2), App.Rotation())
add_polygon(sketch11, [(212.928781, -134.5), (217.03, -138.601219), (221.131219, -134.5), (217.03, -130.398781)])  # lines 0-3
add_polygon(sketch11, [(5.5, -130.398781), (1.398781, -134.5), (5.5, -138.601219), (9.601219, -134.5)])  # lines 4-7
add_polygon(sketch11, [(1.398781, -5.5), (5.5, -9.601219), (9.601219, -5.5), (5.5, -1.398781)])  # lines 8-11
add_polygon(sketch11, [(212.928781, -5.5), (217.03, -9.601219), (221.131219, -5.5), (217.03, -1.398781)])  # lines 12-15
sketch11.addConstraint(Sketcher.Constraint("Perpendicular", 0, 1))
sketch11.addConstraint(Sketcher.Constraint("Perpendicular", 1, 2))
sketch11.addConstraint(Sketcher.Constraint("Perpendicular", 2, 3))
sketch11.addConstraint(Sketcher.Constraint("Parallel", 3, 4))
sketch11.addConstraint(Sketcher.Constraint("Perpendicular", 4, 5))
sketch11.addConstraint(Sketcher.Constraint("Perpendicular", 5, 6))
sketch11.addConstraint(Sketcher.Constraint("Perpendicular", 6, 7))
sketch11.addConstraint(Sketcher.Constraint("Parallel", 7, 8))
sketch11.addConstraint(Sketcher.Constraint("Perpendicular", 8, 9))
sketch11.addConstraint(Sketcher.Constraint("Perpendicular", 9, 10))
sketch11.addConstraint(Sketcher.Constraint("Perpendicular", 10, 11))
sketch11.addConstraint(Sketcher.Constraint("Perpendicular", 11, 12))
sketch11.addConstraint(Sketcher.Constraint("Perpendicular", 12, 13))
sketch11.addConstraint(Sketcher.Constraint("Perpendicular", 13, 14))
sketch11.addConstraint(Sketcher.Constraint("Perpendicular", 14, 15))
sketch11.addConstraint(Sketcher.Constraint("Horizontal", 1, 2, 3, 2))
sketch11.addConstraint(Sketcher.Constraint("Horizontal", 3, 2, 4, 2))
sketch11.addConstraint(Sketcher.Constraint("Horizontal", 0, 2, 5, 2))
sketch11.addConstraint(Sketcher.Constraint("Horizontal", 4, 2, 6, 2))
sketch11.addConstraint(Sketcher.Constraint("Horizontal", 9, 2, 11, 2))
sketch11.addConstraint(Sketcher.Constraint("Horizontal", 8, 2, 12, 2))
sketch11.addConstraint(Sketcher.Constraint("Horizontal", 11, 2, 13, 2))
sketch11.addConstraint(Sketcher.Constraint("Horizontal", 10, 2, 14, 2))
sketch11.addConstraint(Sketcher.Constraint("Vertical", 0, 2, 2, 2))
sketch11.addConstraint(Sketcher.Constraint("Vertical", 7, 2, 8, 2))
sketch11.addConstraint(Sketcher.Constraint("Vertical", 6, 2, 9, 2))
sketch11.addConstraint(Sketcher.Constraint("Vertical", 2, 2, 12, 2))
sketch11.addConstraint(Sketcher.Constraint("DistanceY", 5, 2, 8, 2, Q("129 mm")))
sketch11.addConstraint(Sketcher.Constraint("Distance", 0, Q("5.8 mm")))
sketch11.addConstraint(Sketcher.Constraint("DistanceY", 1, 2, -1, 1, Q("134.5 mm")))
sketch11.addConstraint(Sketcher.Constraint("DistanceX", -1, 1, 5, 2, Q("5.5 mm")))
sketch11.addConstraint(Sketcher.Constraint("DistanceX", -1, 1, 0, 2, Q("217.03 mm")))
sketch11.setExpression("Constraints[44]", "Params.sketch11_length")
pocket9 = body.newObject("PartDesign::Pocket", "Pocket008")
pocket9.Profile = sketch11
pocket9.setExpression("Length", "Params.pocket9_length")

doc.recompute()
